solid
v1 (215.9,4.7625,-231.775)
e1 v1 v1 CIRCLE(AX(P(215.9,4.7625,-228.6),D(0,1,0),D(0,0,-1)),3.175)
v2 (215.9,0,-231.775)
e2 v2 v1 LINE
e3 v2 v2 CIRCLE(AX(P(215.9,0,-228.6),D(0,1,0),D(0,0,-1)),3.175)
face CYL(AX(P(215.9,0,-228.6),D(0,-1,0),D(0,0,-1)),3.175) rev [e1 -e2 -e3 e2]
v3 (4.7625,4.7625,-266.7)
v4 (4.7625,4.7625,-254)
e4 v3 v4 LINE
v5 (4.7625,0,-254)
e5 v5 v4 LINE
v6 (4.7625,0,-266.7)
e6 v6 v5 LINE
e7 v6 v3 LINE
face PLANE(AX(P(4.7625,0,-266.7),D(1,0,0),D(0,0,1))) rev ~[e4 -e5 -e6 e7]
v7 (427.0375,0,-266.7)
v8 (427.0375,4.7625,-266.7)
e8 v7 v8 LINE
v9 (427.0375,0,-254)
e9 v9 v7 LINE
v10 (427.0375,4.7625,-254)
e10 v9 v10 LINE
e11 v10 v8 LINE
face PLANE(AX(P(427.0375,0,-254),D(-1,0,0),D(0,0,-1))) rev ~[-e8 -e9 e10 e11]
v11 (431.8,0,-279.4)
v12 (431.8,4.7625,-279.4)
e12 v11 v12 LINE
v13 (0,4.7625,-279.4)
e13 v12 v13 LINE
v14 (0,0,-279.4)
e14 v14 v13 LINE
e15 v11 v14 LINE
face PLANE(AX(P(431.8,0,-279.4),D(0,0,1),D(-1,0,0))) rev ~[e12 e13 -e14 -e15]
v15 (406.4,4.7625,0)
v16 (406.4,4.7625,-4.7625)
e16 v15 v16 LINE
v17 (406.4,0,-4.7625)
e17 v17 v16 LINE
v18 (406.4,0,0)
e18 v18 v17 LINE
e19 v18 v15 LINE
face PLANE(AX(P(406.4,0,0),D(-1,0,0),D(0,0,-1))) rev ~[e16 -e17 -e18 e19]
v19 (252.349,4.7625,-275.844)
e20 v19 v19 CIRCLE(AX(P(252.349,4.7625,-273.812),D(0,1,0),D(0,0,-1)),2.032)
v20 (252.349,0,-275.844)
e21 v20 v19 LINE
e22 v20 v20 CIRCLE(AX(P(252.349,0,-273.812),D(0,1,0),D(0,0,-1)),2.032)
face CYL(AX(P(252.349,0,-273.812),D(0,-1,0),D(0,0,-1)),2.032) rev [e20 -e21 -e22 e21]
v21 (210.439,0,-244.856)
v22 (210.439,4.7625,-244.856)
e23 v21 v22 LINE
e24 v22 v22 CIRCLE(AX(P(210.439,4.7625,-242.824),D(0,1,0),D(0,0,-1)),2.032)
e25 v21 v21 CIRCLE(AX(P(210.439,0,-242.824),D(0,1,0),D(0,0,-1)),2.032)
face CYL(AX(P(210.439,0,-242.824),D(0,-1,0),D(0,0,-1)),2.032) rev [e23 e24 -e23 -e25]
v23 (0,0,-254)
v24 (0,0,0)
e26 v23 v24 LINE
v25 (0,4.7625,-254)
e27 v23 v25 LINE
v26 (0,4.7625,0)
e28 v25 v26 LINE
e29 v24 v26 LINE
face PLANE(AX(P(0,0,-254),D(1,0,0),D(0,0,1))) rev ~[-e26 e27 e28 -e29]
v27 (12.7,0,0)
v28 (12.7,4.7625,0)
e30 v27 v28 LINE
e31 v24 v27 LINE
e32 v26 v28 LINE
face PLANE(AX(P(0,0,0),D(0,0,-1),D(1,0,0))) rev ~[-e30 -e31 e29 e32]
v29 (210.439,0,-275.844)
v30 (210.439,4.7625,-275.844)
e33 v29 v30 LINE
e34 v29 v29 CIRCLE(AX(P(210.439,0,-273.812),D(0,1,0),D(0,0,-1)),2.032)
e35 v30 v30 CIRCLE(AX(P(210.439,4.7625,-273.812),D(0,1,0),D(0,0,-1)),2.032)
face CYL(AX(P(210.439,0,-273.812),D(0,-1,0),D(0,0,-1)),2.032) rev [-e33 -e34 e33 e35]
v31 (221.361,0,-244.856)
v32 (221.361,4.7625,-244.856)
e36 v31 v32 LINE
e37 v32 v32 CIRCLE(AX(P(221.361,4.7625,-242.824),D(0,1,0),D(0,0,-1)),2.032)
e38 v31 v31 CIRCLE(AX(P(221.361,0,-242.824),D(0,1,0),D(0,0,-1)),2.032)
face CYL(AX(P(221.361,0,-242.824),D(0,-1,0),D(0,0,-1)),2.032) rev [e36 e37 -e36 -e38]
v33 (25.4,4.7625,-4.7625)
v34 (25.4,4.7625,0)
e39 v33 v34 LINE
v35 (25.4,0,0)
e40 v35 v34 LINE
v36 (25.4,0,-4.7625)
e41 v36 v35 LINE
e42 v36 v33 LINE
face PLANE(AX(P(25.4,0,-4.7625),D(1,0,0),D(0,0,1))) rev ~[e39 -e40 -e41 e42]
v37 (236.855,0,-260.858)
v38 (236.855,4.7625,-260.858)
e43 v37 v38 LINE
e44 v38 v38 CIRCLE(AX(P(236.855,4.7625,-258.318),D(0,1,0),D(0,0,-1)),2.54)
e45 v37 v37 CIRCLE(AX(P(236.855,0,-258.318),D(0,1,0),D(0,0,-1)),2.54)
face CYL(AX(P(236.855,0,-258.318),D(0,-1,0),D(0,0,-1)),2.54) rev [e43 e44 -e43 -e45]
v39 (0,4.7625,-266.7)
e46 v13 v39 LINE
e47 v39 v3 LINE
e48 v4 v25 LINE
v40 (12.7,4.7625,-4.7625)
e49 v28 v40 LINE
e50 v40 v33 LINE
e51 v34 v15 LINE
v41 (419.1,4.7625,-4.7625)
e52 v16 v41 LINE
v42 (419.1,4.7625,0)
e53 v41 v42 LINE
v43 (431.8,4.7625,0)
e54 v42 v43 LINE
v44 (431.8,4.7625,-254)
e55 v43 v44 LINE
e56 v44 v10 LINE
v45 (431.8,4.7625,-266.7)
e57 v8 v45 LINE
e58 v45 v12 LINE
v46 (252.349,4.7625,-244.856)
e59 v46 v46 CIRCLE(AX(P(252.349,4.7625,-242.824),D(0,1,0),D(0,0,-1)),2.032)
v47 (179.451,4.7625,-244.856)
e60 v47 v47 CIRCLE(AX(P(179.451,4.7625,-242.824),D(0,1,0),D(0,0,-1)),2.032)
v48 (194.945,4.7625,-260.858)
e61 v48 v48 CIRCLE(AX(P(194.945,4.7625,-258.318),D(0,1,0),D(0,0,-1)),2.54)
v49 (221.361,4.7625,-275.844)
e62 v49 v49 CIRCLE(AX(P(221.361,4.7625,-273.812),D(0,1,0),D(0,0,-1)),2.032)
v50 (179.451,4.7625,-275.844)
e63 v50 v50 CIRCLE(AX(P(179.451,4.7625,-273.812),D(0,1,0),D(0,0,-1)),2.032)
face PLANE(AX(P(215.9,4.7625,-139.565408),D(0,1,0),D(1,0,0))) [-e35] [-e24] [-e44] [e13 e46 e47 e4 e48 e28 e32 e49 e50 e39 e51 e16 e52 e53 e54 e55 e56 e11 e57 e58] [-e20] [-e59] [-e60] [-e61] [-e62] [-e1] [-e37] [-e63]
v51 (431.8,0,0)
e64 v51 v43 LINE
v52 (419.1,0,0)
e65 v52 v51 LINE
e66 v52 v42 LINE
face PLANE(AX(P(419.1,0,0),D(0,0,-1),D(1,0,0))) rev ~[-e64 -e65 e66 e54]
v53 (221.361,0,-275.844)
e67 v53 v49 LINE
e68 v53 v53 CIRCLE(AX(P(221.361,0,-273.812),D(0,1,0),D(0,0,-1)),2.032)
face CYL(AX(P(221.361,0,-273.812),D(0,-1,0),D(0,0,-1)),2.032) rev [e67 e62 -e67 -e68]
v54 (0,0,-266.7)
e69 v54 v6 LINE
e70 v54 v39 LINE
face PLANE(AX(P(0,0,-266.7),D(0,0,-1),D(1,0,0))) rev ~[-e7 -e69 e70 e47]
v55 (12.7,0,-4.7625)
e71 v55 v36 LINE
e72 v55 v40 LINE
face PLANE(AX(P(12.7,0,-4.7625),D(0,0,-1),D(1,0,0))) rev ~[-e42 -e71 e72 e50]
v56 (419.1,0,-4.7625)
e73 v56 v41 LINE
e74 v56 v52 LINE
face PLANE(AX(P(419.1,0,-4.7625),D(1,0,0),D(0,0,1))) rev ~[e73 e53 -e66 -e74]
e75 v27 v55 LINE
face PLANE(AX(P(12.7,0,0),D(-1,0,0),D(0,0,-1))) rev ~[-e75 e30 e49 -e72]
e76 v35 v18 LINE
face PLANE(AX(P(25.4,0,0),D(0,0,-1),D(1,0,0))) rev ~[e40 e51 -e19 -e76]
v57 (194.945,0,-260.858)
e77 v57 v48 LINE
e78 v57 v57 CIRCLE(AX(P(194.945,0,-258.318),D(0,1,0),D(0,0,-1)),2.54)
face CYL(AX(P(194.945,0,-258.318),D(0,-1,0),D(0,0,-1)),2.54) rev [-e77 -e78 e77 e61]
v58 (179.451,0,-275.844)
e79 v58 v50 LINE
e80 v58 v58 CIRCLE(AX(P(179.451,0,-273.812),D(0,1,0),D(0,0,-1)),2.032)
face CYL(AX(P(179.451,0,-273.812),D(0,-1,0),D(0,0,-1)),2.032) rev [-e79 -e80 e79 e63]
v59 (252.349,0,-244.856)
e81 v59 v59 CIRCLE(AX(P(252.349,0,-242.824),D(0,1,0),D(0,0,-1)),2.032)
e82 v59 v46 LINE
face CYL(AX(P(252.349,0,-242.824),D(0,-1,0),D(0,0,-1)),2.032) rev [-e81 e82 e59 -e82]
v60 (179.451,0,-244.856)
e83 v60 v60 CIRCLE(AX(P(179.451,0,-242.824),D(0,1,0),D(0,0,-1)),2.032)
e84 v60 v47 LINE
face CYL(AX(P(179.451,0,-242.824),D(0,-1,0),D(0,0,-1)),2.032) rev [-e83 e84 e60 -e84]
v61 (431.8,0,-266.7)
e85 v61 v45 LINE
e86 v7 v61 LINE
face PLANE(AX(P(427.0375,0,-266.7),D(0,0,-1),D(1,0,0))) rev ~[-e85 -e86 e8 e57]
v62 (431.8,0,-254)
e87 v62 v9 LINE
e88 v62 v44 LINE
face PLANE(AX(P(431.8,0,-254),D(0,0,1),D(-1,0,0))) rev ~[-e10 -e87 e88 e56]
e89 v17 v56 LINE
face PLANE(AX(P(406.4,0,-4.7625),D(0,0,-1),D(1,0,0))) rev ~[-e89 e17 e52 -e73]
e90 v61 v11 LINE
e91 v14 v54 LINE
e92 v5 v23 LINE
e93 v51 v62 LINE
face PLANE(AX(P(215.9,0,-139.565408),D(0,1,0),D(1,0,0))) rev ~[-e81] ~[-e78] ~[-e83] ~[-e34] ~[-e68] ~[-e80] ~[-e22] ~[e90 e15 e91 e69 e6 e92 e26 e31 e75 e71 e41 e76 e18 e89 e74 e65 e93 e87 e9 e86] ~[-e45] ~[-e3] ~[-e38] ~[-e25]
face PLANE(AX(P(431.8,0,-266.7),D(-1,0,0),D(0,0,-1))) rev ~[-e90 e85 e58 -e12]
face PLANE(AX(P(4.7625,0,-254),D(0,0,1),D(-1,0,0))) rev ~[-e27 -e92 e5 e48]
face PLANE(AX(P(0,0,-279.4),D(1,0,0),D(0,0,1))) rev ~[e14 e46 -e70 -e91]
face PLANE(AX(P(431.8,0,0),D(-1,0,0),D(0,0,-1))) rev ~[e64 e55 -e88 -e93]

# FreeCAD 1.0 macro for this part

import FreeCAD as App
import Part
import Sketcher
Q = App.Units.Quantity

doc = App.newDocument("Part")
body = doc.addObject("PartDesign::Body", "Body")

# Sketch on XZ plane
sketch1 = doc.addObject("Sketcher::SketchObject", "Sketch")
body.addObject(sketch1)
sketch1.AttachmentSupport = (doc.XZ_Plane, [""])
sketch1.MapMode = "FlatFace"
sketch1.addGeometry(Part.LineSegment(App.Vector(0, 0, 0), App.Vector(12.7, 0, 0)), False)
sketch1.addGeometry(Part.LineSegment(App.Vector(12.7, 0, 0), App.Vector(12.7, -4.8, 0)), False)
sketch1.addGeometry(Part.LineSegment(App.Vector(12.7, -4.8, 0), App.Vector(25.4, -4.8, 0)), False)
sketch1.addGeometry(Part.LineSegment(App.Vector(25.4, -4.8, 0), App.Vector(25.4, 0, 0)), False)
sketch1.addGeometry(Part.LineSegment(App.Vector(25.4, 0, 0), App.Vector(406.4, 0, 0)), False)
sketch1.addGeometry(Part.LineSegment(App.Vector(406.4, 0, 0), App.Vector(406.4, -4.8, 0)), False)
sketch1.addGeometry(Part.LineSegment(App.Vector(406.4, -4.8, 0), App.Vector(419.1, -4.8, 0)), False)
sketch1.addGeometry(Part.LineSegment(App.Vector(419.1, -4.8, 0), App.Vector(419.1, 0, 0)), False)
sketch1.addGeometry(Part.LineSegment(App.Vector(419.1, 0, 0), App.Vector(431.8, 0, 0)), False)
sketch1.addGeometry(Part.LineSegment(App.Vector(431.8, 0, 0), App.Vector(431.8, -254, 0)), False)
sketch1.addGeometry(Part.LineSegment(App.Vector(431.8, -254, 0), App.Vector(427, -254, 0)), False)
sketch1.addGeometry(Part.LineSegment(App.Vector(427, -254, 0), App.Vector(427, -266.7, 0)), False)
sketch1.addGeometry(Part.LineSegment(App.Vector(427, -266.7, 0), App.Vector(431.8, -266.7, 0)), False)
sketch1.addGeometry(Part.LineSegment(App.Vector(431.8, -266.7, 0), App.Vector(431.8, -279.4, 0)), False)
sketch1.addGeometry(Part.LineSegment(App.Vector(431.8, -279.4, 0), App.Vector(0, -279.4, 0)), False)
sketch1.addGeometry(Part.LineSegment(App.Vector(0, -279.4, 0), App.Vector(0, -266.7, 0)), False)
sketch1.addGeometry(Part.LineSegment(App.Vector(0, -266.7, 0), App.Vector(4.8, -266.7, 0)), False)
sketch1.addGeometry(Part.LineSegment(App.Vector(4.8, -266.7, 0), App.Vector(4.8, -254, 0)), False)
sketch1.addGeometry(Part.LineSegment(App.Vector(4.8, -254, 0), App.Vector(0, -254, 0)), False)
sketch1.addGeometry(Part.LineSegment(App.Vector(0, -254, 0), App.Vector(0, 0, 0)), False)
sketch1.addGeometry(Part.Circle(App.Vector(179.5, -242.8, 0), App.Vector(0, 0, 1), 2), False)
sketch1.addGeometry(Part.Circle(App.Vector(210.4, -242.8, 0), App.Vector(0, 0, 1), 2), False)
sketch1.addGeometry(Part.Circle(App.Vector(215.9, -228.6, 0), App.Vector(0, 0, 1), 3.2), False)
sketch1.addGeometry(Part.Circle(App.Vector(221.4, -242.8, 0), App.Vector(0, 0, 1), 2), False)
sketch1.addGeometry(Part.Circle(App.Vector(252.3, -242.8, 0), App.Vector(0, 0, 1), 2), False)
sketch1.addGeometry(Part.Circle(App.Vector(194.9, -258.3, 0), App.Vector(0, 0, 1), 2.5), False)
sketch1.addGeometry(Part.Circle(App.Vector(179.5, -273.8, 0), App.Vector(0, 0, 1), 2), False)
sketch1.addGeometry(Part.Circle(App.Vector(210.4, -273.8, 0), App.Vector(0, 0, 1), 2), False)
sketch1.addGeometry(Part.Circle(App.Vector(236.9, -258.3, 0), App.Vector(0, 0, 1), 2.5), False)
sketch1.addGeometry(Part.Circle(App.Vector(221.4, -273.8, 0), App.Vector(0, 0, 1), 2), False)
sketch1.addGeometry(Part.Circle(App.Vector(252.3, -273.8, 0), App.Vector(0, 0, 1), 2), False)
sketch1.addConstraint(Sketcher.Constraint("Coincident", 0, 2, 1, 1))
sketch1.addConstraint(Sketcher.Constraint("Coincident", 1, 2, 2, 1))
sketch1.addConstraint(Sketcher.Constraint("Coincident", 2, 2, 3, 1))
sketch1.addConstraint(Sketcher.Constraint("Coincident", 3, 2, 4, 1))
sketch1.addConstraint(Sketcher.Constraint("Coincident", 4, 2, 5, 1))
sketch1.addConstraint(Sketcher.Constraint("Coincident", 5, 2, 6, 1))
sketch1.addConstraint(Sketcher.Constraint("Coincident", 6, 2, 7, 1))
sketch1.addConstraint(Sketcher.Constraint("Coincident", 7, 2, 8, 1))
sketch1.addConstraint(Sketcher.Constraint("Coincident", 8, 2, 9, 1))
sketch1.addConstraint(Sketcher.Constraint("Coincident", 9, 2, 10, 1))
sketch1.addConstraint(Sketcher.Constraint("Coincident", 10, 2, 11, 1))
sketch1.addConstraint(Sketcher.Constraint("Coincident", 11, 2, 12, 1))
sketch1.addConstraint(Sketcher.Constraint("Coincident", 12, 2, 13, 1))
sketch1.addConstraint(Sketcher.Constraint("Coincident", 13, 2, 14, 1))
sketch1.addConstraint(Sketcher.Constraint("Coincident", 14, 2, 15, 1))
sketch1.addConstraint(Sketcher.Constraint("Coincident", 15, 2, 16, 1))
sketch1.addConstraint(Sketcher.Constraint("Coincident", 16, 2, 17, 1))
sketch1.addConstraint(Sketcher.Constraint("Coincident", 17, 2, 18, 1))
sketch1.addConstraint(Sketcher.Constraint("Coincident", 18, 2, 19, 1))
sketch1.addConstraint(Sketcher.Constraint("Coincident", 19, 2, 0, 1))
sketch1.addConstraint(Sketcher.Constraint("Horizontal", 0))
sketch1.addConstraint(Sketcher.Constraint("Vertical", 1))
sketch1.addConstraint(Sketcher.Constraint("Horizontal", 2))
sketch1.addConstraint(Sketcher.Constraint("Vertical", 3))
sketch1.addConstraint(Sketcher.Constraint("Horizontal", 4))
sketch1.addConstraint(Sketcher.Constraint("Vertical", 5))
sketch1.addConstraint(Sketcher.Constraint("Horizontal", 6))
sketch1.addConstraint(Sketcher.Constraint("Vertical", 7))
sketch1.addConstraint(Sketcher.Constraint("Horizontal", 8))
sketch1.addConstraint(Sketcher.Constraint("Vertical", 9))
sketch1.addConstraint(Sketcher.Constraint("Horizontal", 10))
sketch1.addConstraint(Sketcher.Constraint("Vertical", 11))
sketch1.addConstraint(Sketcher.Constraint("Horizontal", 12))
sketch1.addConstraint(Sketcher.Constraint("Vertical", 13))
sketch1.addConstraint(Sketcher.Constraint("Horizontal", 14))
sketch1.addConstraint(Sketcher.Constraint("Vertical", 15))
sketch1.addConstraint(Sketcher.Constraint("Horizontal", 16))
sketch1.addConstraint(Sketcher.Constraint("Vertical", 17))
sketch1.addConstraint(Sketcher.Constraint("Horizontal", 18))
sketch1.addConstraint(Sketcher.Constraint("Vertical", 19))
sketch1.addConstraint(Sketcher.Constraint("Coincident", 19, 2, -1, 1))
sketch1.addConstraint(Sketcher.Constraint("Equal", 20, 21))
sketch1.addConstraint(Sketcher.Constraint("Equal", 21, 23))
sketch1.addConstraint(Sketcher.Constraint("Equal", 23, 24))
sketch1.addConstraint(Sketcher.Constraint("Equal", 24, 26))
sketch1.addConstraint(Sketcher.Constraint("Equal", 26, 27))
sketch1.addConstraint(Sketcher.Constraint("Equal", 25, 28))
sketch1.addConstraint(Sketcher.Constraint("Equal", 27, 29))
sketch1.addConstraint(Sketcher.Constraint("Equal", 29, 30))
sketch1.addConstraint(Sketcher.Constraint("PointOnObject", 3, 2, -1))
sketch1.addConstraint(Sketcher.Constraint("PointOnObject", 7, 2, -1))
sketch1.addConstraint(Sketcher.Constraint("PointOnObject", 14, 2, -2))
sketch1.addConstraint(Sketcher.Constraint("Horizontal", 20, 3, 21, 3))
sketch1.addConstraint(Sketcher.Constraint("Horizontal", 21, 3, 23, 3))
sketch1.addConstraint(Sketcher.Constraint("Horizontal", 23, 3, 24, 3))
sketch1.addConstraint(Sketcher.Constraint("Horizontal", 26, 3, 27, 3))
sketch1.addConstraint(Sketcher.Constraint("Horizontal", 25, 3, 28, 3))
sketch1.addConstraint(Sketcher.Constraint("Horizontal", 27, 3, 29, 3))
sketch1.addConstraint(Sketcher.Constraint("Horizontal", 29, 3, 30, 3))
sketch1.addConstraint(Sketcher.Constraint("Horizontal", 2, 2, 5, 2))
sketch1.addConstraint(Sketcher.Constraint("Horizontal", 12, 2, 15, 2))
sketch1.addConstraint(Sketcher.Constraint("Horizontal", 10, 2, 17, 2))
sketch1.addConstraint(Sketcher.Constraint("Vertical", 20, 3, 26, 3))
sketch1.addConstraint(Sketcher.Constraint("Vertical", 21, 3, 27, 3))
sketch1.addConstraint(Sketcher.Constraint("Vertical", 23, 3, 29, 3))
sketch1.addConstraint(Sketcher.Constraint("Vertical", 24, 3, 30, 3))
sketch1.addConstraint(Sketcher.Constraint("Vertical", 9, 2, 12, 2))
sketch1.addConstraint(Sketcher.Constraint("Equal", 0, 2))
sketch1.addConstraint(Sketcher.Constraint("Equal", 2, 6))
sketch1.addConstraint(Sketcher.Constraint("Equal", 6, 8))
sketch1.addConstraint(Sketcher.Constraint("Equal", 12, 16))
sketch1.addConstraint(Sketcher.Constraint("Equal", 18, 1))
sketch1.addConstraint(Sketcher.Constraint("Equal", 8, 11))
sketch1.addConstraint(Sketcher.Constraint("Equal", 11, 13))
sketch1.addConstraint(Sketcher.Constraint("Diameter", 25, Q("0.2 in")))
sketch1.addConstraint(Sketcher.Constraint("Diameter", 20, Q("0.16 in")))
sketch1.addConstraint(Sketcher.Constraint("Diameter", 22, Q("0.25 in")))
sketch1.addConstraint(Sketcher.Constraint("DistanceX", 4, 1, 4, 2, Q("15 in")))
sketch1.addConstraint(Sketcher.Constraint("DistanceX", 14, 2, 14, 1, Q("17 in")))
sketch1.addConstraint(Sketcher.Constraint("DistanceY", 9, 2, 9, 1, Q("10 in")))
sketch1.addConstraint(Sketcher.Constraint("DistanceY", 22, 3, -1, 1, Q("9 in")))
sketch1.addConstraint(Sketcher.Constraint("DistanceX", 0, 2, 22, 3, Q("8 in")))
sketch1.addConstraint(Sketcher.Constraint("DistanceX", 10, 2, 10, 1, Q("0.1875 in")))
sketch1.addConstraint(Sketcher.Constraint("DistanceY", 20, 3, -1, 1, Q("9.56 in")))
sketch1.addConstraint(Sketcher.Constraint("DistanceY", 25, 3, -1, 1, Q("10.17 in")))
sketch1.addConstraint(Sketcher.Constraint("DistanceY", 26, 3, -1, 1, Q("10.78 in")))
sketch1.addConstraint(Sketcher.Constraint("DistanceX", 20, 3, 21, 3, Q("1.22 in")))
sketch1.addConstraint(Sketcher.Constraint("DistanceX", 21, 3, 23, 3, Q("0.43 in")))
sketch1.addConstraint(Sketcher.Constraint("DistanceX", 23, 3, 24, 3, Q("1.22 in")))
sketch1.addConstraint(Sketcher.Constraint("DistanceX", 20, 3, 25, 3, Q("0.61 in")))
sketch1.addConstraint(Sketcher.Constraint("DistanceX", 23, 3, 28, 3, Q("0.61 in")))
sketch1.addConstraint(Sketcher.Constraint("DistanceX", -1, 1, 20, 3, Q("7.065 in")))
pad1 = doc.addObject("PartDesign::Pad", "Pad")
body.addObject(pad1)
pad1.Profile = sketch1
pad1.Length = Q("0.1875 in")
pad1.Reversed = True

doc.recompute()
